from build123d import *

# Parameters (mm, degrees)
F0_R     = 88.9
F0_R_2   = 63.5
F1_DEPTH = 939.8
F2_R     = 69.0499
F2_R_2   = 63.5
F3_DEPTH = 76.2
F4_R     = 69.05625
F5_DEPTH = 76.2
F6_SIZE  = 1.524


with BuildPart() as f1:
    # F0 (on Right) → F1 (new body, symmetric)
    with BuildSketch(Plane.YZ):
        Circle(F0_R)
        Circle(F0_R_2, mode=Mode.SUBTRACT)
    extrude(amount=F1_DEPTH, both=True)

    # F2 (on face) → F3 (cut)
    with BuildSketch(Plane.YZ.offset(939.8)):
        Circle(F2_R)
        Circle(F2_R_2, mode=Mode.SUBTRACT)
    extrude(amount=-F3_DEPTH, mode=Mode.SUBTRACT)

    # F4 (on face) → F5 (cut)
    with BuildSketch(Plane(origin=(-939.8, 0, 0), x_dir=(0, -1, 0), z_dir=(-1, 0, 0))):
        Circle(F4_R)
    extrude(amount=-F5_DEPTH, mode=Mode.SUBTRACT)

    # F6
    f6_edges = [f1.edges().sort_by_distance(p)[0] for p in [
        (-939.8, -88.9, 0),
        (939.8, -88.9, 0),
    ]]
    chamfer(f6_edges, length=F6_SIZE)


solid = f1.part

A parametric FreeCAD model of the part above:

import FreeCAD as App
import Part
import Sketcher
Q = App.Units.Quantity


def edges_at(feature, points):
    """Names of the edges that pass closest to the given points."""
    edges = feature.Shape.Edges
    near = lambda p: min(range(len(edges)), key=lambda i: edges[i].distToShape(Part.Vertex(*p))[0])
    return sorted({f"Edge{near(p) + 1}" for p in points})

doc = App.newDocument("Part")
body = doc.addObject("PartDesign::Body", "Body")

# Sketch on YZ plane
sketch1 = body.newObject("Sketcher::SketchObject", "Sketch")
sketch1.AttachmentSupport = (doc.getObject("YZ_Plane"), [""])
sketch1.MapMode = "FlatFace"
sketch1.addGeometry([
    Part.Circle(App.Vector(0, 0, 0), App.Vector(0, 0, 1), 88.9),
    Part.Circle(App.Vector(0, 0, 0), App.Vector(0, 0, 1), 63.5),
], False)
sketch1.addConstraint([
    Sketcher.Constraint("Coincident", 0, 3, -1, 1),
    Sketcher.Constraint("Coincident", 1, 3, -1, 1),
    Sketcher.Constraint("Diameter", 0, Q("7 in")),
    Sketcher.Constraint("Diameter", 1, Q("5 in")),
])
pad1 = body.newObject("PartDesign::Pad", "Pad")
pad1.Profile = sketch1
pad1.Length = Q("74 in")
pad1.Midplane = True

# Sketch on YZ plane
sketch2 = body.newObject("Sketcher::SketchObject", "Sketch001")
sketch2.AttachmentSupport = (doc.getObject("YZ_Plane"), [""])
sketch2.MapMode = "FlatFace"
sketch2.AttachmentOffset = App.Placement(App.Vector(0, 0, 37 * 25.4), App.Rotation())
sketch2.addGeometry([
    Part.Circle(App.Vector(0, 0, 0), App.Vector(0, 0, 1), 69.0499),
    Part.Circle(App.Vector(0, 0, 0), App.Vector(0, 0, 1), 63.5),
], False)
sketch2.addConstraint([
    Sketcher.Constraint("Coincident", 0, 3, -1, 1),
    Sketcher.Constraint("Coincident", 1, 3, -1, 1),
    Sketcher.Constraint("Diameter", 1, Q("5 in")),
    Sketcher.Constraint("Diameter", 0, Q("5.437 in")),
])
pocket1 = body.newObject("PartDesign::Pocket", "Pocket")
pocket1.Profile = sketch2
pocket1.Length = Q("3 in")

# Sketch on YZ plane
sketch3 = body.newObject("Sketcher::SketchObject", "Sketch002")
sketch3.AttachmentSupport = (doc.getObject("YZ_Plane"), [""])
sketch3.MapMode = "FlatFace"
sketch3.AttachmentOffset = App.Placement(App.Vector(0, 0, -37 * 25.4), App.Rotation())
sketch3.addGeometry(Part.Circle(App.Vector(0, 0, 0), App.Vector(0, 0, 1), 69.05625), False)
sketch3.addConstraint([
    Sketcher.Constraint("Coincident", 0, 3, -1, 1),
    Sketcher.Constraint("Diameter", 0, Q("5.4375 in")),
])
pocket2 = body.newObject("PartDesign::Pocket", "Pocket001")
pocket2.Profile = sketch3
pocket2.Length = Q("3 in")
pocket2.Reversed = True
doc.recompute()

chamfer = body.newObject("PartDesign::Chamfer", "Chamfer")
chamfer.Base = (pocket2, edges_at(pocket2, [(-939.8, -88.9, 0), (939.8, -88.9, 0)]))
chamfer.Size = Q("0.06 in")

doc.recompute()
